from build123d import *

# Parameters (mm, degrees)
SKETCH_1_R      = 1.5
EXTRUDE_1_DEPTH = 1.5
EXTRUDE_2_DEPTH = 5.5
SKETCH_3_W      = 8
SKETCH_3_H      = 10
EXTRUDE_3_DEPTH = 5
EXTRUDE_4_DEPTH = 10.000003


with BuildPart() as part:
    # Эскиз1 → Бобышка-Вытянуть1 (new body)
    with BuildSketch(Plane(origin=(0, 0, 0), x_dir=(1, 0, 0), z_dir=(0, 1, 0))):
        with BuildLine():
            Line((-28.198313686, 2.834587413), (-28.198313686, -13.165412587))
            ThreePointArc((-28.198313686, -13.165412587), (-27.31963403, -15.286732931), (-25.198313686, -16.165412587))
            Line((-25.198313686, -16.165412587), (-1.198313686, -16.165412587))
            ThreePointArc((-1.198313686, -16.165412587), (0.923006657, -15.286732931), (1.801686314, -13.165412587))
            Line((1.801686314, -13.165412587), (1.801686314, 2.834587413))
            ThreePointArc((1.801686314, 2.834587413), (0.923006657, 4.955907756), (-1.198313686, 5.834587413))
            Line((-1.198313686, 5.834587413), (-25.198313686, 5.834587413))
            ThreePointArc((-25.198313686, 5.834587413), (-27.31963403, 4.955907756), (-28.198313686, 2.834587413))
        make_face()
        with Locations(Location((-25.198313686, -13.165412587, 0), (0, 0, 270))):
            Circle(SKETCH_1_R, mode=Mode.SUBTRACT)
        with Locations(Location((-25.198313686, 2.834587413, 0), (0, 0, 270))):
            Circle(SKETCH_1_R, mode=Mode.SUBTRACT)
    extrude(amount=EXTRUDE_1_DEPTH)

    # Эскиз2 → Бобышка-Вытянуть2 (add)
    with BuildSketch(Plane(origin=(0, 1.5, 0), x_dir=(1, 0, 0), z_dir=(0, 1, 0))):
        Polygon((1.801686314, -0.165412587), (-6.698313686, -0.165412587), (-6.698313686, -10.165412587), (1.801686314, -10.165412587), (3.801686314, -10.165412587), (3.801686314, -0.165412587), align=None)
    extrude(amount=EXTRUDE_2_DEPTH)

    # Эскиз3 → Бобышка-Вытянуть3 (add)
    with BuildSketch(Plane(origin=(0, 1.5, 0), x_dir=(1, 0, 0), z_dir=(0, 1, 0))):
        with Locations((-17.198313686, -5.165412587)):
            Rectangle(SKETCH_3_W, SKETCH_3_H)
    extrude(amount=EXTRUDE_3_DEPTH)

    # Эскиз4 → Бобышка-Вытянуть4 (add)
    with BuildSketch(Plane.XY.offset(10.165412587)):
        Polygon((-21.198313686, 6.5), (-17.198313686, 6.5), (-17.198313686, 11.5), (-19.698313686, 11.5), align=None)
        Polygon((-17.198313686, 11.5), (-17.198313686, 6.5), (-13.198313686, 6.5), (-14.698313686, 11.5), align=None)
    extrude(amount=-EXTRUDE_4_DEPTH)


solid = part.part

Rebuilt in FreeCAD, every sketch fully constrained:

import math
import FreeCAD as App
import Part
import Sketcher

V = App.Vector
Q = App.Units.Quantity


def add_polygon(sketch, points):
    """Adds a closed chain of lines whose ends are joined by coincident constraints."""
    first, n = sketch.GeometryCount, len(points)
    for a, b in zip(points, points[1:] + points[:1]):
        sketch.addGeometry(Part.LineSegment(App.Vector(*a, 0), App.Vector(*b, 0)), False)
    for i in range(n):
        sketch.addConstraint(Sketcher.Constraint("Coincident", first + i, 2, first + (i + 1) % n, 1))

doc = App.newDocument("Part")
body = doc.addObject("PartDesign::Body", "Body")

sketch1 = body.newObject("Sketcher::SketchObject", "Sketch")
sketch1.AttachmentSupport = (doc.getObject("XZ_Plane"), [""])
sketch1.MapMode = "FlatFace"
sketch1.addGeometry(Part.LineSegment(V(-28.198314, -2.834587, 0), V(-28.198314, 13.165413, 0)), False)
sketch1.addGeometry(Part.ArcOfCircle(Part.Circle(V(-25.198314, 13.165413, 0), V(0, 0, 1), 3), math.radians(90), math.radians(180)), False)
sketch1.addGeometry(Part.LineSegment(V(-25.198314, 16.165413, 0), V(-1.198314, 16.165413, 0)), False)
sketch1.addGeometry(Part.ArcOfCircle(Part.Circle(V(-1.198314, 13.165413, 0), V(0, 0, 1), 3), math.radians(0), math.radians(90)), False)
sketch1.addGeometry(Part.LineSegment(V(1.801686, 13.165413, 0), V(1.801686, -2.834587, 0)), False)
sketch1.addGeometry(Part.ArcOfCircle(Part.Circle(V(-1.198314, -2.834587, 0), V(0, 0, 1), 3), math.radians(-90), math.radians(0)), False)
sketch1.addGeometry(Part.LineSegment(V(-1.198314, -5.834587, 0), V(-25.198314, -5.834587, 0)), False)
sketch1.addGeometry(Part.ArcOfCircle(Part.Circle(V(-25.198314, -2.834587, 0), V(0, 0, 1), 3), math.radians(180), math.radians(270)), False)
sketch1.addGeometry(Part.Circle(V(-25.198314, 13.165413, 0), V(0, 0, 1), 1.5), False)
sketch1.addGeometry(Part.Circle(V(-25.198314, -2.834587, 0), V(0, 0, 1), 1.5), False)
sketch1.addConstraint(Sketcher.Constraint("Tangent", 0, 2, 1, 2))
sketch1.addConstraint(Sketcher.Constraint("Tangent", 1, 1, 2, 1))
sketch1.addConstraint(Sketcher.Constraint("Tangent", 2, 2, 3, 2))
sketch1.addConstraint(Sketcher.Constraint("Tangent", 3, 1, 4, 1))
sketch1.addConstraint(Sketcher.Constraint("Tangent", 4, 2, 5, 2))
sketch1.addConstraint(Sketcher.Constraint("Tangent", 5, 1, 6, 1))
sketch1.addConstraint(Sketcher.Constraint("Tangent", 6, 2, 7, 2))
sketch1.addConstraint(Sketcher.Constraint("Tangent", 7, 1, 0, 1))
sketch1.addConstraint(Sketcher.Constraint("Vertical", 0))
sketch1.addConstraint(Sketcher.Constraint("Horizontal", 2))
sketch1.addConstraint(Sketcher.Constraint("Vertical", 4))
sketch1.addConstraint(Sketcher.Constraint("Horizontal", 6))
sketch1.addConstraint(Sketcher.Constraint("Coincident", 8, 3, 1, 3))
sketch1.addConstraint(Sketcher.Constraint("Coincident", 9, 3, 7, 3))
sketch1.addConstraint(Sketcher.Constraint("Equal", 1, 3))
sketch1.addConstraint(Sketcher.Constraint("Equal", 3, 5))
sketch1.addConstraint(Sketcher.Constraint("Equal", 5, 7))
sketch1.addConstraint(Sketcher.Constraint("Equal", 8, 9))
sketch1.addConstraint(Sketcher.Constraint("Diameter", 8, Q("3 mm")))
sketch1.addConstraint(Sketcher.Constraint("Radius", 1, Q("3 mm")))
sketch1.addConstraint(Sketcher.Constraint("DistanceX", 2, 1, 2, 2, Q("24 mm")))
sketch1.addConstraint(Sketcher.Constraint("DistanceY", 0, 1, 0, 2, Q("16 mm")))
sketch1.addConstraint(Sketcher.Constraint("DistanceX", 1, 3, -1, 1, Q("25.198314 mm")))
sketch1.addConstraint(Sketcher.Constraint("DistanceY", -1, 1, 1, 3, Q("13.165413 mm")))
pad1 = body.newObject("PartDesign::Pad", "Pad")
pad1.Profile = sketch1
pad1.Length = 1.5
pad1.Reversed = True

sketch2 = body.newObject("Sketcher::SketchObject", "Sketch001")
sketch2.AttachmentSupport = (doc.getObject("XZ_Plane"), [""])
sketch2.MapMode = "FlatFace"
sketch2.AttachmentOffset = App.Placement(V(0, 0, -1.5), App.Rotation())
add_polygon(sketch2, [(-6.698314, 0.165413), (-6.698314, 10.165413), (3.801686, 10.165413), (3.801686, 0.165413)])
sketch2.addConstraint(Sketcher.Constraint("Vertical", 0))
sketch2.addConstraint(Sketcher.Constraint("Horizontal", 1))
sketch2.addConstraint(Sketcher.Constraint("Vertical", 2))
sketch2.addConstraint(Sketcher.Constraint("Horizontal", 3))
sketch2.addConstraint(Sketcher.Constraint("DistanceY", 0, 1, 0, 2, Q("10 mm")))
sketch2.addConstraint(Sketcher.Constraint("DistanceX", 1, 1, 1, 2, Q("10.5 mm")))
sketch2.addConstraint(Sketcher.Constraint("DistanceX", 0, 2, -1, 1, Q("6.698314 mm")))
sketch2.addConstraint(Sketcher.Constraint("DistanceY", -1, 1, 0, 2, Q("10.165413 mm")))
pad2 = body.newObject("PartDesign::Pad", "Pad001")
pad2.Profile = sketch2
pad2.Length = 5.5
pad2.Reversed = True

sketch3 = body.newObject("Sketcher::SketchObject", "Sketch002")
sketch3.AttachmentSupport = (doc.getObject("XZ_Plane"), [""])
sketch3.MapMode = "FlatFace"
sketch3.AttachmentOffset = App.Placement(V(0, 0, -1.5), App.Rotation())
add_polygon(sketch3, [(-21.198314, 0.165413), (-21.198314, 10.165413), (-13.198314, 10.165413), (-13.198314, 0.165413)])
sketch3.addConstraint(Sketcher.Constraint("Vertical", 0))
sketch3.addConstraint(Sketcher.Constraint("Horizontal", 1))
sketch3.addConstraint(Sketcher.Constraint("Vertical", 2))
sketch3.addConstraint(Sketcher.Constraint("Horizontal", 3))
sketch3.addConstraint(Sketcher.Constraint("DistanceX", 1, 1, 1, 2, Q("8 mm")))
sketch3.addConstraint(Sketcher.Constraint("DistanceY", 0, 1, 0, 2, Q("10 mm")))
sketch3.addConstraint(Sketcher.Constraint("DistanceX", 0, 2, -1, 1, Q("21.198314 mm")))
sketch3.addConstraint(Sketcher.Constraint("DistanceY", -1, 1, 0, 2, Q("10.165413 mm")))
pad3 = body.newObject("PartDesign::Pad", "Pad002")
pad3.Profile = sketch3
pad3.Length = 5
pad3.Reversed = True

sketch4 = body.newObject("Sketcher::SketchObject", "Sketch003")
sketch4.AttachmentSupport = (doc.getObject("XY_Plane"), [""])
sketch4.MapMode = "FlatFace"
sketch4.AttachmentOffset = App.Placement(V(0, 0, 10.165413), App.Rotation())
add_polygon(sketch4, [(-21.198314, 6.5), (-13.198314, 6.5), (-14.698314, 11.5), (-19.698314, 11.5)])
sketch4.addConstraint(Sketcher.Constraint("Horizontal", 0))
sketch4.addConstraint(Sketcher.Constraint("Horizontal", 2))
sketch4.addConstraint(Sketcher.Constraint("Equal", 1, 3))
sketch4.addConstraint(Sketcher.Constraint("DistanceX", 0, 1, 0, 2, Q("8 mm")))
sketch4.addConstraint(Sketcher.Constraint("DistanceX", 2, 2, 2, 1, Q("5 mm")))
sketch4.addConstraint(Sketcher.Constraint("DistanceY", 0, 2, 1, 2, Q("5 mm")))
sketch4.addConstraint(Sketcher.Constraint("DistanceY", -1, 1, 0, 2, Q("6.5 mm")))
sketch4.addConstraint(Sketcher.Constraint("DistanceX", 0, 2, -1, 1, Q("13.198314 mm")))
pad4 = body.newObject("PartDesign::Pad", "Pad003")
pad4.Profile = sketch4
pad4.Length = 10.000003
pad4.Reversed = True

doc.recompute()
